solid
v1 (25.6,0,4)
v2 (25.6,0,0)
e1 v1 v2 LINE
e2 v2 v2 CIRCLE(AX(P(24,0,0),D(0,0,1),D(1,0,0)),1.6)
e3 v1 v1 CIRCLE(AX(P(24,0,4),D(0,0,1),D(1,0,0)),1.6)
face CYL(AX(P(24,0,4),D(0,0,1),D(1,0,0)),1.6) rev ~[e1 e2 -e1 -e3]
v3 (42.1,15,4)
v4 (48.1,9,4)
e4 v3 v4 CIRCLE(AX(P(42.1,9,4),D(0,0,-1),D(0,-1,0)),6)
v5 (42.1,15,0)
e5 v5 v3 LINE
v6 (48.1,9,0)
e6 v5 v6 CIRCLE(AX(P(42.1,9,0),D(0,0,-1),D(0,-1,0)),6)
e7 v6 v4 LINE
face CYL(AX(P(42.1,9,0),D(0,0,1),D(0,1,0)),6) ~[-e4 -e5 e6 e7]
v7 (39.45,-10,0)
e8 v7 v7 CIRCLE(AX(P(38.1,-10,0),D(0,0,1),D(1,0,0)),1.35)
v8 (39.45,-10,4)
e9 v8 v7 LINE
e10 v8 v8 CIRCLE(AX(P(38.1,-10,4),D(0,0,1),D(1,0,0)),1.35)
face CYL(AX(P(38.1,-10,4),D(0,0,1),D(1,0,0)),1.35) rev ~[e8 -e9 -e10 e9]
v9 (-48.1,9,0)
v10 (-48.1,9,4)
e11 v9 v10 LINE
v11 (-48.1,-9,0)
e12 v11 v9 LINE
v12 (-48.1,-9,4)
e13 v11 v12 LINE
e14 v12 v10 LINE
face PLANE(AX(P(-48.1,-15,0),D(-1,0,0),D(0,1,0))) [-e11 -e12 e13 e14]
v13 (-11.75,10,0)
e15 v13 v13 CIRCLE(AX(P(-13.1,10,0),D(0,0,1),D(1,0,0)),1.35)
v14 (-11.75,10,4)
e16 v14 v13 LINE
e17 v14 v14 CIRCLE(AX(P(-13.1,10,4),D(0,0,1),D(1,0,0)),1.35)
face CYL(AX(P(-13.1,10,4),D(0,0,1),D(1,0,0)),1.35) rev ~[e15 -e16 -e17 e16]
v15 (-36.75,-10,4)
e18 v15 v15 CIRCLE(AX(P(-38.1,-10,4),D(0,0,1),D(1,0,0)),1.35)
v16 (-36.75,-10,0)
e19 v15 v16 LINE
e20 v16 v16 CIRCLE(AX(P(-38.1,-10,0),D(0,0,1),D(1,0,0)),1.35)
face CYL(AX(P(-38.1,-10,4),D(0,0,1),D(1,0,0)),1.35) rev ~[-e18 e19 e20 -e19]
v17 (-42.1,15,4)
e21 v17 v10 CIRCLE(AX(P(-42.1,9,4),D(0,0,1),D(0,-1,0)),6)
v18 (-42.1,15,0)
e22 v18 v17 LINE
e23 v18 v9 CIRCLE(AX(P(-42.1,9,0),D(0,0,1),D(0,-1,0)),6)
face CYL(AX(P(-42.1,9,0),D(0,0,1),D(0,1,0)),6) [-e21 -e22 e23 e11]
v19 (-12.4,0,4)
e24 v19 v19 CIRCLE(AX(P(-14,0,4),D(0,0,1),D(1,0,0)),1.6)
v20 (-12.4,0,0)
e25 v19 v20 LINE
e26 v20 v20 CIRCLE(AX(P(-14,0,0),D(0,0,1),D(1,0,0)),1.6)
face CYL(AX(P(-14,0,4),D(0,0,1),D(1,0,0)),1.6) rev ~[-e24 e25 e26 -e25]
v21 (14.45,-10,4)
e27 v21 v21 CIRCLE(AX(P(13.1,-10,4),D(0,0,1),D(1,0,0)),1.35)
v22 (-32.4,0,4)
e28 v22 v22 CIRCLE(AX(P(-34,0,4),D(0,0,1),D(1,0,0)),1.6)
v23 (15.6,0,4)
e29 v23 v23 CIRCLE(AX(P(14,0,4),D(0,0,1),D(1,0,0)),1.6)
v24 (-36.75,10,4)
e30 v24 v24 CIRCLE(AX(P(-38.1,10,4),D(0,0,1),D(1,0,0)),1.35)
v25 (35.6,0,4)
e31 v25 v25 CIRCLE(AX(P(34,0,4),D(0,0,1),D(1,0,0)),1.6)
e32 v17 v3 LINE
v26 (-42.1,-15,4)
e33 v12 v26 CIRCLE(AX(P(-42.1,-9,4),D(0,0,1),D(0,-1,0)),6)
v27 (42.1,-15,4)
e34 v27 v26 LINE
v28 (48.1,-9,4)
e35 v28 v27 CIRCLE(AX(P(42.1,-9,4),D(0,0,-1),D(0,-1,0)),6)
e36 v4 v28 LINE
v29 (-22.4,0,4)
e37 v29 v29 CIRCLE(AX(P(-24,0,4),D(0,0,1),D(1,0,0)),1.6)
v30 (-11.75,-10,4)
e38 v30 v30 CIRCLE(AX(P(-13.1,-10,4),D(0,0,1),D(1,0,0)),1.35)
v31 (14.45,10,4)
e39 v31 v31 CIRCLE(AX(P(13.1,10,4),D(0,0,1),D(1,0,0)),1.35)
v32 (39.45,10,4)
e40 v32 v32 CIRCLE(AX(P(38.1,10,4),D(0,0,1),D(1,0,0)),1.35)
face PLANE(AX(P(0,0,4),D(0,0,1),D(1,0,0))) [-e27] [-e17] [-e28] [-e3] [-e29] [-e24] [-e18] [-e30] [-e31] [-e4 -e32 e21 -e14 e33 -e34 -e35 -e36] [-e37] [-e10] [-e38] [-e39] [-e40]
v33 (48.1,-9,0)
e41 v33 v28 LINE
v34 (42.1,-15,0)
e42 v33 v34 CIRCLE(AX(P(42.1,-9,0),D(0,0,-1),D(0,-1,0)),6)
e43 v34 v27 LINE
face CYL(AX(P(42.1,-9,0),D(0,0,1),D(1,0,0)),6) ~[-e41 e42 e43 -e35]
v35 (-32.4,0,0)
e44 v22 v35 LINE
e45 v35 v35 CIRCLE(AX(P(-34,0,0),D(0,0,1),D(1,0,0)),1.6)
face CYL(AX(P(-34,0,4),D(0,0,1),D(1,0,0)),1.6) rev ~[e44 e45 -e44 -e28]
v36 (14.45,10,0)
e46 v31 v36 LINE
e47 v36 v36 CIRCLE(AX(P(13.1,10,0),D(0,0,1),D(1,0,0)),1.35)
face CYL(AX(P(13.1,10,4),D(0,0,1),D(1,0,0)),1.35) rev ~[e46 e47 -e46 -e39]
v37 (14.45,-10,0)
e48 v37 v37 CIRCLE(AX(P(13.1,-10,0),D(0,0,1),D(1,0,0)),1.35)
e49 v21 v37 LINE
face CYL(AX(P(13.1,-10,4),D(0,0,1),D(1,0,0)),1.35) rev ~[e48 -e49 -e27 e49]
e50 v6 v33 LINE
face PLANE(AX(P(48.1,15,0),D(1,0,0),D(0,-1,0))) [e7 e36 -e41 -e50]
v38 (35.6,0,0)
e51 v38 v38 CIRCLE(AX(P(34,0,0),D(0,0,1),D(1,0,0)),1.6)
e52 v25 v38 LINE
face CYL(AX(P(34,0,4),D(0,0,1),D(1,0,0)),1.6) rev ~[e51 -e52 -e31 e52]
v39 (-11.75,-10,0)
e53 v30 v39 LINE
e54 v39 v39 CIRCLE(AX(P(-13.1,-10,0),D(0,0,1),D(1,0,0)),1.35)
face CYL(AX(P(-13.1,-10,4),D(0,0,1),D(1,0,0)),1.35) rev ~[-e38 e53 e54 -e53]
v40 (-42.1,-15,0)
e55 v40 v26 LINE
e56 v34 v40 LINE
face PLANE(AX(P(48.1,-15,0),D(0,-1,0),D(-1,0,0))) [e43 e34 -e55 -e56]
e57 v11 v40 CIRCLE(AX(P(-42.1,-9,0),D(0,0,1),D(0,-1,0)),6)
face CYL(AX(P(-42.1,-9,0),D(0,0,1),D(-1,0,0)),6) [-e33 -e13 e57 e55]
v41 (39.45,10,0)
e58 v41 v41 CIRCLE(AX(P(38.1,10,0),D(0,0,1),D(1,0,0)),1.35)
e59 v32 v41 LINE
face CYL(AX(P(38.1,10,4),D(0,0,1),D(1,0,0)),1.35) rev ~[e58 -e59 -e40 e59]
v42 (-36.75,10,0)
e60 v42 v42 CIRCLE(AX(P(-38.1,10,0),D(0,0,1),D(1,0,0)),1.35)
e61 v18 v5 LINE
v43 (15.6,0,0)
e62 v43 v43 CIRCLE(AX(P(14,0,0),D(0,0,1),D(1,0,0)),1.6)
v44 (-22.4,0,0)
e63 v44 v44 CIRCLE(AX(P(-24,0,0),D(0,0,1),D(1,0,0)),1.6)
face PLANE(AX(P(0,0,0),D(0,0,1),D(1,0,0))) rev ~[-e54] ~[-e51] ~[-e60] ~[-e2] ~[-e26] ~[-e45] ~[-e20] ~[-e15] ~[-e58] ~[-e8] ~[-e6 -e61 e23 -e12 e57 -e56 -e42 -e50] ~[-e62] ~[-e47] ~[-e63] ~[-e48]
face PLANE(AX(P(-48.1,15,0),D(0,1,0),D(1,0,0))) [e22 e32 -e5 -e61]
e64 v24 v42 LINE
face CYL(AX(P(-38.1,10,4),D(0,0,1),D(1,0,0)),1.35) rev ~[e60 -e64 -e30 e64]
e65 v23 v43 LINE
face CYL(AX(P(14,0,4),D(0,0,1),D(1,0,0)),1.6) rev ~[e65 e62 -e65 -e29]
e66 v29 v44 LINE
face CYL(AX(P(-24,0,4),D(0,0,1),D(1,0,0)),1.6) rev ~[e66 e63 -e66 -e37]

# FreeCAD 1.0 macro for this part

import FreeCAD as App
import Part
import Sketcher

V = App.Vector
Q = App.Units.Quantity


def edges_at(feature, points):
    """Names of the edges that pass closest to the given points."""
    edges = feature.Shape.Edges
    near = lambda p: min(range(len(edges)), key=lambda i: edges[i].distToShape(Part.Vertex(*p))[0])
    return sorted({f"Edge{near(p) + 1}" for p in points})


def add_polygon(sketch, points):
    """Adds a closed chain of lines whose ends are joined by coincident constraints."""
    first, n = sketch.GeometryCount, len(points)
    for a, b in zip(points, points[1:] + points[:1]):
        sketch.addGeometry(Part.LineSegment(App.Vector(*a, 0), App.Vector(*b, 0)), False)
    for i in range(n):
        sketch.addConstraint(Sketcher.Constraint("Coincident", first + i, 2, first + (i + 1) % n, 1))

doc = App.newDocument("Part")
body = doc.addObject("PartDesign::Body", "Body")

# Sketch on XY plane
sketch1 = doc.addObject("Sketcher::SketchObject", "Sketch")
body.addObject(sketch1)
sketch1.AttachmentSupport = (doc.XY_Plane, [""])
sketch1.MapMode = "FlatFace"
add_polygon(sketch1, [(48, 15), (-48, 15), (-48, -15), (48, -15)])  # lines 0-3
sketch1.addConstraint([
    Sketcher.Constraint("Horizontal", 0),
    Sketcher.Constraint("Vertical", 1),
    Sketcher.Constraint("Horizontal", 2),
    Sketcher.Constraint("Vertical", 3),
    Sketcher.Constraint("Symmetric", 0, 2, 2, 2, -1, 1),
    Sketcher.Constraint("DistanceY", 1, 2, 1, 1, Q("30 mm")),
    Sketcher.Constraint("DistanceX", 0, 2, 0, 1, Q("96.2 mm")),
])
pad1 = doc.addObject("PartDesign::Pad", "Pad")
body.addObject(pad1)
pad1.Profile = sketch1
pad1.Length = 4

# Sketch on XY plane
sketch2 = doc.addObject("Sketcher::SketchObject", "Sketch001")
body.addObject(sketch2)
sketch2.AttachmentSupport = (doc.XY_Plane, [""])
sketch2.MapMode = "FlatFace"
sketch2.AttachmentOffset = App.Placement(V(0, 0, 4), App.Rotation())
sketch2.addGeometry([
    Part.Circle(V(-24, 0, 0), V(0, 0, 1), 1.6),  # 0
    Part.Circle(V(-34, 0, 0), V(0, 0, 1), 1.6),  # 1
    Part.Circle(V(14, 0, 0), V(0, 0, 1), 1.6),  # 2
    Part.Circle(V(24, 0, 0), V(0, 0, 1), 1.6),  # 3
    Part.Circle(V(34, 0, 0), V(0, 0, 1), 1.6),  # 4
    Part.Circle(V(-14, 0, 0), V(0, 0, 1), 1.6),  # 5
], False)
sketch2.addConstraint([
    Sketcher.Constraint("Equal", 0, 1),
    Sketcher.Constraint("Equal", 1, 2),
    Sketcher.Constraint("Equal", 2, 3),
    Sketcher.Constraint("Equal", 3, 4),
    Sketcher.Constraint("Equal", 4, 5),
    Sketcher.Constraint("Symmetric", 0, 3, 3, 3, -1, 1),
    Sketcher.Constraint("Symmetric", 1, 3, 4, 3, -1, 1),
    Sketcher.Constraint("Symmetric", 2, 3, 5, 3, -1, 1),
    Sketcher.Constraint("PointOnObject", 0, 3, -1),
    Sketcher.Constraint("PointOnObject", 1, 3, -1),
    Sketcher.Constraint("PointOnObject", 2, 3, -1),
    Sketcher.Constraint("Diameter", 0, Q("3.2 mm")),
    Sketcher.Constraint("DistanceX", -1, 1, 2, 3, Q("14 mm")),
    Sketcher.Constraint("DistanceX", 1, 3, 0, 3, Q("10 mm")),
    Sketcher.Constraint("DistanceX", 2, 3, 3, 3, Q("10 mm")),
])
pocket1 = doc.addObject("PartDesign::Pocket", "Pocket")
body.addObject(pocket1)
pocket1.Profile = sketch2
pocket1.Length = 4
doc.recompute()

fillet = doc.addObject("PartDesign::Fillet", "Fillet")
body.addObject(fillet)
fillet.Base = (pocket1, edges_at(pocket1, [
    (-48.1, 15, 2),
    (-48.1, -15, 2),
    (48.1, -15, 2),
    (48.1, 15, 2),
]))
fillet.Radius = 6

# Sketch on XY plane
sketch3 = doc.addObject("Sketcher::SketchObject", "Sketch002")
body.addObject(sketch3)
sketch3.AttachmentSupport = (doc.XY_Plane, [""])
sketch3.MapMode = "FlatFace"
sketch3.AttachmentOffset = App.Placement(V(0, 0, 4), App.Rotation())
sketch3.addGeometry([
    Part.Circle(V(-38.1, 10, 0), V(0, 0, 1), 1.4),  # 0
    Part.Circle(V(-13.1, 10, 0), V(0, 0, 1), 1.4),  # 1
    Part.Circle(V(-38.1, -10, 0), V(0, 0, 1), 1.4),  # 2
    Part.Circle(V(-13.1, -10, 0), V(0, 0, 1), 1.4),  # 3
    Part.Circle(V(38.1, 10, 0), V(0, 0, 1), 1.4),  # 4
    Part.Circle(V(13.1, 10, 0), V(0, 0, 1), 1.4),  # 5
    Part.Circle(V(38.1, -10, 0), V(0, 0, 1), 1.4),  # 6
    Part.Circle(V(13.1, -10, 0), V(0, 0, 1), 1.4),  # 7
], False)
sketch3.addConstraint([
    Sketcher.Constraint("Equal", 0, 1),
    Sketcher.Constraint("Equal", 1, 2),
    Sketcher.Constraint("Equal", 2, 3),
    Sketcher.Constraint("Equal", 3, 4),
    Sketcher.Constraint("Equal", 4, 5),
    Sketcher.Constraint("Equal", 5, 6),
    Sketcher.Constraint("Equal", 6, 7),
    Sketcher.Constraint("Symmetric", 2, 3, 4, 3, -1, 1),
    Sketcher.Constraint("Symmetric", 3, 3, 5, 3, -1, 1),
    Sketcher.Constraint("Symmetric", 0, 3, 6, 3, -1, 1),
    Sketcher.Constraint("Symmetric", 1, 3, 7, 3, -1, 1),
    Sketcher.Constraint("Symmetric", 0, 3, 4, 3, -2),
    Sketcher.Constraint("Symmetric", 1, 3, 5, 3, -2),
    Sketcher.Constraint("Horizontal", 0, 3, 1, 3),
    Sketcher.Constraint("Diameter", 0, Q("2.7 mm")),
    Sketcher.Constraint("DistanceY", -1, 1, 0, 3, Q("10 mm")),
    Sketcher.Constraint("DistanceX", 0, 3, 1, 3, Q("25 mm")),
    Sketcher.Constraint("DistanceX", 0, 3, -1, 1, Q("38.1 mm")),
])
pocket2 = doc.addObject("PartDesign::Pocket", "Pocket001")
body.addObject(pocket2)
pocket2.Profile = sketch3
pocket2.Length = 4

doc.recompute()
